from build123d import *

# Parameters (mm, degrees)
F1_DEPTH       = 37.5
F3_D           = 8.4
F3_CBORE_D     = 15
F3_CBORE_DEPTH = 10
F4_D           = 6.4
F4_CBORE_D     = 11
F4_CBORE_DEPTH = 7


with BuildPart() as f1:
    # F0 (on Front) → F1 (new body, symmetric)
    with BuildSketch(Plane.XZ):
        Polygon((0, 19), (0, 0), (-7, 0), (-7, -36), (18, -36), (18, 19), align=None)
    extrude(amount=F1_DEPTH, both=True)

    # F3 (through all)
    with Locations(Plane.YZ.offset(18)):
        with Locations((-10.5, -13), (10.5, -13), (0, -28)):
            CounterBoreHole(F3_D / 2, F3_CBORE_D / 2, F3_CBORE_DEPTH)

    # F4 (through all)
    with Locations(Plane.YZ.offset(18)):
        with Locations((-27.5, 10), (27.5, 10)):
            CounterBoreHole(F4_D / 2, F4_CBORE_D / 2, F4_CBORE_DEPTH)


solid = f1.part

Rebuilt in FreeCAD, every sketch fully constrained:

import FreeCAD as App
import Part
import Sketcher


def add_polygon(sketch, points):
    """Adds a closed chain of lines whose ends are joined by coincident constraints."""
    first, n = sketch.GeometryCount, len(points)
    for a, b in zip(points, points[1:] + points[:1]):
        sketch.addGeometry(Part.LineSegment(App.Vector(*a, 0), App.Vector(*b, 0)), False)
    for i in range(n):
        sketch.addConstraint(Sketcher.Constraint("Coincident", first + i, 2, first + (i + 1) % n, 1))

doc = App.newDocument("Part")
body = doc.addObject("PartDesign::Body", "Body")

# Sketch on XZ plane
sketch1 = body.newObject("Sketcher::SketchObject", "Sketch")
sketch1.AttachmentSupport = (doc.getObject("XZ_Plane"), [""])
sketch1.MapMode = "FlatFace"
add_polygon(sketch1, [(0, 19), (0, 0), (-7, 0), (-7, -36), (18, -36), (18, 19)])  # lines 0-5
sketch1.addConstraint([
    Sketcher.Constraint("Vertical", 0),
    Sketcher.Constraint("Horizontal", 1),
    Sketcher.Constraint("Vertical", 2),
    Sketcher.Constraint("Horizontal", 3),
    Sketcher.Constraint("Vertical", 4),
    Sketcher.Constraint("Horizontal", 5),
    Sketcher.Constraint("Coincident", 0, 2, -1, 1),
    Sketcher.Constraint("DistanceX", 1, 2, 1, 1, 7.0),
    Sketcher.Constraint("DistanceX", 3, 1, 3, 2, 25.0),
    Sketcher.Constraint("DistanceY", 0, 2, 0, 1, 19.0),
    Sketcher.Constraint("DistanceY", 2, 2, 2, 1, 36.0),
])
pad1 = body.newObject("PartDesign::Pad", "Pad")
pad1.Profile = sketch1
pad1.Length = 75
pad1.Midplane = True

# Sketch on YZ plane
sketch2 = body.newObject("Sketcher::SketchObject", "Sketch001")
sketch2.AttachmentSupport = (doc.getObject("YZ_Plane"), [""])
sketch2.MapMode = "FlatFace"
sketch2.AttachmentOffset = App.Placement(App.Vector(0, 0, 18), App.Rotation())
sketch2.addGeometry([
    Part.Circle(App.Vector(-10.5, -13, 0), App.Vector(0, 0, 1), 4.2),
    Part.Circle(App.Vector(10.5, -13, 0), App.Vector(0, 0, 1), 4.2),
    Part.Circle(App.Vector(0, -28, 0), App.Vector(0, 0, 1), 4.2),
], False)
sketch2.addConstraint([
    Sketcher.Constraint("Equal", 0, 1),
    Sketcher.Constraint("Equal", 1, 2),
    Sketcher.Constraint("Symmetric", 0, 3, 1, 3, -2),
    Sketcher.Constraint("PointOnObject", 2, 3, -2),
    Sketcher.Constraint("Diameter", 0, 8.4),
    Sketcher.Constraint("DistanceY", 0, 3, -1, 1, 13.0),
    Sketcher.Constraint("DistanceY", 2, 3, -1, 1, 28.0),
    Sketcher.Constraint("DistanceX", 0, 3, 1, 3, 21.0),
])
doc.recompute()
hole = body.newObject("PartDesign::Hole", "Hole")
hole.Profile = sketch2
hole.ThreadType = "None"
hole.Diameter = 8.4
hole.DepthType = "ThroughAll"
hole.HoleCutType = "Counterbore"
hole.HoleCutDiameter = 15
hole.HoleCutDepth = 10

# Sketch on YZ plane
sketch3 = body.newObject("Sketcher::SketchObject", "Sketch002")
sketch3.AttachmentSupport = (doc.getObject("YZ_Plane"), [""])
sketch3.MapMode = "FlatFace"
sketch3.AttachmentOffset = App.Placement(App.Vector(0, 0, 18), App.Rotation())
sketch3.addGeometry([
    Part.Circle(App.Vector(-27.5, 10, 0), App.Vector(0, 0, 1), 3.2),
    Part.Circle(App.Vector(27.5, 10, 0), App.Vector(0, 0, 1), 3.2),
], False)
sketch3.addConstraint([
    Sketcher.Constraint("Equal", 0, 1),
    Sketcher.Constraint("Symmetric", 0, 3, 1, 3, -2),
    Sketcher.Constraint("Diameter", 0, 6.4),
    Sketcher.Constraint("DistanceY", -1, 1, 0, 3, 10.0),
    Sketcher.Constraint("DistanceX", 0, 3, 1, 3, 55.0),
])
doc.recompute()
hole2 = body.newObject("PartDesign::Hole", "Hole001")
hole2.Profile = sketch3
hole2.ThreadType = "None"
hole2.Diameter = 6.4
hole2.DepthType = "ThroughAll"
hole2.HoleCutType = "Counterbore"
hole2.HoleCutDiameter = 11
hole2.HoleCutDepth = 7

doc.recompute()
